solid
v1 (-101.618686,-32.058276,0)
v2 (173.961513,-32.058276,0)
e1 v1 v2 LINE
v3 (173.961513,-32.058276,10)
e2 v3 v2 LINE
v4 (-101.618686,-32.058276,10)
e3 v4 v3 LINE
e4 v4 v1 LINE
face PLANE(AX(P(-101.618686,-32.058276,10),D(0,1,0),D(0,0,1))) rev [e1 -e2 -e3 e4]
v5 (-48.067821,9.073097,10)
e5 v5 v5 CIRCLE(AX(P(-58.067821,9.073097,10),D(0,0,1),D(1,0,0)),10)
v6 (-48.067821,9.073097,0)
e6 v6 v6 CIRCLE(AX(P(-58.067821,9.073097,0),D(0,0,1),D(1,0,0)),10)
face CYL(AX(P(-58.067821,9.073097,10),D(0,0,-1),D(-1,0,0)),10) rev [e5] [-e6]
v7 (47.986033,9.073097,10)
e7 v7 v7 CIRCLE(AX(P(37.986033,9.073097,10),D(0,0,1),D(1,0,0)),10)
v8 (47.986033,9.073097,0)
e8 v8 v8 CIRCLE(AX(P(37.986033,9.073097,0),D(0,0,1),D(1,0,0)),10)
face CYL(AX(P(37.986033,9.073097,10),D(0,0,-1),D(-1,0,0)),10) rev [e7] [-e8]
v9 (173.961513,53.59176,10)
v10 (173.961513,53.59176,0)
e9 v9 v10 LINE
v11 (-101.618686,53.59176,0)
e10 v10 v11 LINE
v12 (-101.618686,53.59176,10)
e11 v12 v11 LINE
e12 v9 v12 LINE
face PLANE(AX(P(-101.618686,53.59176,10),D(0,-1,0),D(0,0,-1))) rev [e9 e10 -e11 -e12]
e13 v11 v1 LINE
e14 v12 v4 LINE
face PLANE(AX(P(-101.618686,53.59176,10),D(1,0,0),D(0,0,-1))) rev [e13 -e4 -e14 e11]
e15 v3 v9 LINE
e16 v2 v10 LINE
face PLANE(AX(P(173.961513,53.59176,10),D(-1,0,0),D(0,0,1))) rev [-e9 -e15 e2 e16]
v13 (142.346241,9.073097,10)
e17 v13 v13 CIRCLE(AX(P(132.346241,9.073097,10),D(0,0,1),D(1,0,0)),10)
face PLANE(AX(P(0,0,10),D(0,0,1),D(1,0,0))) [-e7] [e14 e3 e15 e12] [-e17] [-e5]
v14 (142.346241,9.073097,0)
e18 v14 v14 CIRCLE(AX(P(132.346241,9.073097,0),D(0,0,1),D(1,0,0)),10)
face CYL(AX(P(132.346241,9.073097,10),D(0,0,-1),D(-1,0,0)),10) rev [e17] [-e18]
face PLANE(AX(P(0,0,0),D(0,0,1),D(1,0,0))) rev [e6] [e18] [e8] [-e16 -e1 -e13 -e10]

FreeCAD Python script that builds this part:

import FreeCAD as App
import Part
import Sketcher

V = App.Vector
Q = App.Units.Quantity

doc = App.newDocument("Part")
body = doc.addObject("PartDesign::Body", "Body")

# Sketch on XY plane
sketch1 = body.newObject("Sketcher::SketchObject", "Sketch")
sketch1.AttachmentSupport = (doc.getObject("XY_Plane"), [""])
sketch1.MapMode = "FlatFace"
sketch1.addGeometry([
    Part.LineSegment(V(-101.618686, 53.59176, 0), V(-101.618686, -32.058276, 0)),  # 0
    Part.LineSegment(V(-101.618686, -32.058276, 0), V(173.961513, -32.058276, 0)),  # 1
    Part.LineSegment(V(173.961513, -32.058276, 0), V(173.961513, 53.59176, 0)),  # 2
    Part.LineSegment(V(173.961513, 53.59176, 0), V(-101.618686, 53.59176, 0)),  # 3
    Part.Circle(V(-58.067821, 9.073097, 0), V(0, 0, 1), 10),  # 4
    Part.Circle(V(37.986033, 9.073097, 0), V(0, 0, 1), 10),  # 5
    Part.Circle(V(132.346241, 9.073097, 0), V(0, 0, 1), 10),  # 6
], False)
sketch1.addConstraint([
    Sketcher.Constraint("Coincident", 0, 2, 1, 1),
    Sketcher.Constraint("Coincident", 1, 2, 2, 1),
    Sketcher.Constraint("Coincident", 2, 2, 3, 1),
    Sketcher.Constraint("Coincident", 3, 2, 0, 1),
    Sketcher.Constraint("Vertical", 0),
    Sketcher.Constraint("Horizontal", 1),
    Sketcher.Constraint("Vertical", 2),
    Sketcher.Constraint("Horizontal", 3),
    Sketcher.Constraint("Equal", 4, 5),
    Sketcher.Constraint("Equal", 5, 6),
    Sketcher.Constraint("Horizontal", 4, 3, 5, 3),
    Sketcher.Constraint("Horizontal", 5, 3, 6, 3),
    Sketcher.Constraint("Diameter", 4, Q("20 mm")),
    Sketcher.Constraint("DistanceX", 1, 1, 1, 2, Q("275.580199 mm")),
    Sketcher.Constraint("DistanceY", 0, 2, 0, 1, Q("85.650036 mm")),
    Sketcher.Constraint("DistanceX", 4, 3, -1, 1, Q("58.067821 mm")),
    Sketcher.Constraint("DistanceX", -1, 1, 6, 3, Q("132.346241 mm")),
    Sketcher.Constraint("DistanceY", -1, 1, 2, 2, Q("53.59176 mm")),
    Sketcher.Constraint("DistanceX", 5, 3, 6, 3, Q("94.360209 mm")),
    Sketcher.Constraint("DistanceX", 0, 2, 5, 3, Q("139.604719 mm")),
    Sketcher.Constraint("DistanceY", -1, 1, 4, 3, Q("9.073097 mm")),
])
pad1 = body.newObject("PartDesign::Pad", "Pad")
pad1.Profile = sketch1
pad1.Length = 10

doc.recompute()
